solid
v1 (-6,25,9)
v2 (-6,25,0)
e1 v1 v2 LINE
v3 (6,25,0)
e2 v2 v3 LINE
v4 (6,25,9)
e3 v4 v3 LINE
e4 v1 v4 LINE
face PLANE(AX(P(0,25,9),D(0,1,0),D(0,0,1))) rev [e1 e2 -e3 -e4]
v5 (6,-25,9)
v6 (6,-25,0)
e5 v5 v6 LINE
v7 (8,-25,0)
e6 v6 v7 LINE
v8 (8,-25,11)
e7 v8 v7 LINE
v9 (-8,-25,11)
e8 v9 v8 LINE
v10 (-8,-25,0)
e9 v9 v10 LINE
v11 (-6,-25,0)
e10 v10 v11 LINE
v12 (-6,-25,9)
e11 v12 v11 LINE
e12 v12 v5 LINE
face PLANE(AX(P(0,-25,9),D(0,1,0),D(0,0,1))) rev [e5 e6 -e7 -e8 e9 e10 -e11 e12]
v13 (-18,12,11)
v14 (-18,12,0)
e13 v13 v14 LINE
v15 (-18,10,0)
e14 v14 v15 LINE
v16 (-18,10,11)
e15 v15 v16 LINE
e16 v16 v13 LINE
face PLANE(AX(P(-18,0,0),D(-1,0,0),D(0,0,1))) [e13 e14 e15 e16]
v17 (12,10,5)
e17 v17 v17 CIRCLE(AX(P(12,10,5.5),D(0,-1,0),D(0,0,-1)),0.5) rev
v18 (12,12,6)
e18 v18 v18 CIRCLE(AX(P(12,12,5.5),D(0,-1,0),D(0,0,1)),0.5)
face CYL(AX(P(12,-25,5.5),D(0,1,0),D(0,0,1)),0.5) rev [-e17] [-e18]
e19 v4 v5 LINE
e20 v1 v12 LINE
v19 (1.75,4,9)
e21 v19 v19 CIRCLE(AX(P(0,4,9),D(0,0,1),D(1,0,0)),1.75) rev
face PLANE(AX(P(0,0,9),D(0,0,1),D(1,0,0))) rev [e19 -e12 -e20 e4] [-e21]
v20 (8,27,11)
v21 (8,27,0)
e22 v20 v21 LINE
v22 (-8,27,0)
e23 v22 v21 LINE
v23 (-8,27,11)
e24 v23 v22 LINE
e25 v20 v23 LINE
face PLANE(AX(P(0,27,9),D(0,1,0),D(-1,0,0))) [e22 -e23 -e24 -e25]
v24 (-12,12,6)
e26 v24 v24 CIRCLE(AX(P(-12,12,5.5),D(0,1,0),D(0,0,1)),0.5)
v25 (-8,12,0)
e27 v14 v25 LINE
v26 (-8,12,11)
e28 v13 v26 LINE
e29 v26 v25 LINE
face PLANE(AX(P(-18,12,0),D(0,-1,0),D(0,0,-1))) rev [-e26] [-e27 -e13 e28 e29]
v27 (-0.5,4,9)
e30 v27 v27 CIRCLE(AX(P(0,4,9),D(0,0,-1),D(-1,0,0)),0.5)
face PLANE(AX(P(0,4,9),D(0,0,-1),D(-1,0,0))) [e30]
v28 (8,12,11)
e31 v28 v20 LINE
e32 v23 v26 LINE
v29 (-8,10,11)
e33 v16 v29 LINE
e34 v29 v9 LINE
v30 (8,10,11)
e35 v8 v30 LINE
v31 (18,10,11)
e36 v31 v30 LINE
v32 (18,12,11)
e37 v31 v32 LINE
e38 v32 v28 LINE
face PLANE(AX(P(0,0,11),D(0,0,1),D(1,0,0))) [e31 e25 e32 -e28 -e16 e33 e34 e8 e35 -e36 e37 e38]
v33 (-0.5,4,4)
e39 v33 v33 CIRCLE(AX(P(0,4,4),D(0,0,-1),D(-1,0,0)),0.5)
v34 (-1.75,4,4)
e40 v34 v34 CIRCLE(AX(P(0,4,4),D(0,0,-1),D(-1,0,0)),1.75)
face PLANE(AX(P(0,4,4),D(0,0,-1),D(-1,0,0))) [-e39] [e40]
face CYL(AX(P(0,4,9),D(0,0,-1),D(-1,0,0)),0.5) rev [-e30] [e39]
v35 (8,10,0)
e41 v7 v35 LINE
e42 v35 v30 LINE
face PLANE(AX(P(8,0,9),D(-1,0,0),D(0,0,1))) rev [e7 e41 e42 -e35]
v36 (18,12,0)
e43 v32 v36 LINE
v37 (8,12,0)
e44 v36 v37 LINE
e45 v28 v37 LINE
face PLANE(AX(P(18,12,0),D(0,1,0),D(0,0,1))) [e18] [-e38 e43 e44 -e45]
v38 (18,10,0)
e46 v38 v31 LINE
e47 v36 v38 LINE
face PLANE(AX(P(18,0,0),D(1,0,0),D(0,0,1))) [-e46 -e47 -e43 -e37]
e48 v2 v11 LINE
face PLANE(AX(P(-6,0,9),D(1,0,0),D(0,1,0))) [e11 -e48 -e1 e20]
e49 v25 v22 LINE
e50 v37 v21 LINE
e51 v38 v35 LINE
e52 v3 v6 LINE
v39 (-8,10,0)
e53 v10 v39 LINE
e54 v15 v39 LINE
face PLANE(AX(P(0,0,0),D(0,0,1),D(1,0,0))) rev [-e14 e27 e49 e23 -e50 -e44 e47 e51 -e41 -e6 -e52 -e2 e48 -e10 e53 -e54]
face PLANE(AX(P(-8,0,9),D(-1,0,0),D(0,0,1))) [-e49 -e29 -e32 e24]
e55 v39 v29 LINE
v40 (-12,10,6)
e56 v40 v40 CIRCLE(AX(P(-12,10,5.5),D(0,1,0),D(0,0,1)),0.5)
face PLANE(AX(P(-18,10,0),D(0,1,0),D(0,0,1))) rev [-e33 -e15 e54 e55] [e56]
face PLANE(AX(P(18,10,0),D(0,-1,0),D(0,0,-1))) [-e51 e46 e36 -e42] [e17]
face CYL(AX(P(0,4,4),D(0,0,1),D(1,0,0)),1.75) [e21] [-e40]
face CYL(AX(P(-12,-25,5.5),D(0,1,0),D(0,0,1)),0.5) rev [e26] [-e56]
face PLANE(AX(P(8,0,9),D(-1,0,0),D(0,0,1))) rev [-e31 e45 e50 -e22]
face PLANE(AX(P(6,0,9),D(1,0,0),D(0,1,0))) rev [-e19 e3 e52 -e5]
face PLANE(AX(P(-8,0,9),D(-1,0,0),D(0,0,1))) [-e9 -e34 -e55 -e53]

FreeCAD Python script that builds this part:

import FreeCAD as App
import Part
import Sketcher
from FreeCAD import Vector

doc = App.newDocument("Part")
params = doc.addObject("Spreadsheet::Sheet", "Params")
for row, (alias, value) in enumerate([
    ("sketch1_width", "12 mm"),
    ("sketch1_width2", "2 mm"),
    ("sketch1_height", "50 mm"),
    ("sketch1_height2", "52 mm"),
    ("pad1_length", "9 mm"),
    ("sketch2_width", "16 mm"),
    ("sketch2_height", "52 mm"),
    ("pad2_length", "2 mm"),
    ("sketch3_diameter", "3.5 mm"),
    ("pad3_length", "5 mm"),
    ("sketch4_diameter", "1 mm"),
    ("pocket1_length", "5 mm"),
    ("sketch5_width", "2 mm"),
    ("sketch5_height", "11 mm"),
    ("pad4_length", "10 mm"),
    ("sketch6_diameter", "1 mm"),
], start=1):
    params.set(f"A{row}", alias)
    params.set(f"B{row}", "=" + value)
    params.setAlias(f"B{row}", alias)

body = doc.addObject("PartDesign::Body", "Body")

# Sketch on XY plane
sketch1 = body.newObject("Sketcher::SketchObject", "Sketch")
sketch1.AttachmentSupport = (doc.getObject("XY_Plane"), [""])
sketch1.MapMode = "FlatFace"
sketch1.addGeometry(Part.LineSegment(Vector(-6, -25, 0), Vector(-6, 25, 0)), False)
sketch1.addGeometry(Part.LineSegment(Vector(-6, 25, 0), Vector(6, 25, 0)), False)
sketch1.addGeometry(Part.LineSegment(Vector(6, 25, 0), Vector(6, -25, 0)), False)
sketch1.addGeometry(Part.LineSegment(Vector(6, -25, 0), Vector(8, -25, 0)), False)
sketch1.addGeometry(Part.LineSegment(Vector(8, -25, 0), Vector(8, 27, 0)), False)
sketch1.addGeometry(Part.LineSegment(Vector(8, 27, 0), Vector(-8, 27, 0)), False)
sketch1.addGeometry(Part.LineSegment(Vector(-8, 27, 0), Vector(-8, -25, 0)), False)
sketch1.addGeometry(Part.LineSegment(Vector(-8, -25, 0), Vector(-6, -25, 0)), False)
sketch1.addConstraint(Sketcher.Constraint("Coincident", 0, 2, 1, 1))
sketch1.addConstraint(Sketcher.Constraint("Coincident", 1, 2, 2, 1))
sketch1.addConstraint(Sketcher.Constraint("Coincident", 2, 2, 3, 1))
sketch1.addConstraint(Sketcher.Constraint("Coincident", 3, 2, 4, 1))
sketch1.addConstraint(Sketcher.Constraint("Coincident", 4, 2, 5, 1))
sketch1.addConstraint(Sketcher.Constraint("Coincident", 5, 2, 6, 1))
sketch1.addConstraint(Sketcher.Constraint("Coincident", 6, 2, 7, 1))
sketch1.addConstraint(Sketcher.Constraint("Coincident", 7, 2, 0, 1))
sketch1.addConstraint(Sketcher.Constraint("Vertical", 0))
sketch1.addConstraint(Sketcher.Constraint("Horizontal", 1))
sketch1.addConstraint(Sketcher.Constraint("Vertical", 2))
sketch1.addConstraint(Sketcher.Constraint("Horizontal", 3))
sketch1.addConstraint(Sketcher.Constraint("Vertical", 4))
sketch1.addConstraint(Sketcher.Constraint("Horizontal", 5))
sketch1.addConstraint(Sketcher.Constraint("Vertical", 6))
sketch1.addConstraint(Sketcher.Constraint("Horizontal", 7))
sketch1.addConstraint(Sketcher.Constraint("Symmetric", 0, 2, 2, 2, -1, 1))
sketch1.addConstraint(Sketcher.Constraint("Symmetric", 3, 2, 6, 2, -2))
sketch1.addConstraint(Sketcher.Constraint("DistanceX", 1, 1, 1, 2, 12.0))
sketch1.addConstraint(Sketcher.Constraint("DistanceX", 3, 1, 3, 2, 2.0))
sketch1.addConstraint(Sketcher.Constraint("DistanceY", 0, 1, 0, 2, 50.0))
sketch1.addConstraint(Sketcher.Constraint("DistanceY", 4, 1, 4, 2, 52.0))
sketch1.setExpression("Constraints[18]", "Params.sketch1_width")
sketch1.setExpression("Constraints[19]", "Params.sketch1_width2")
sketch1.setExpression("Constraints[20]", "Params.sketch1_height")
sketch1.setExpression("Constraints[21]", "Params.sketch1_height2")
pad1 = body.newObject("PartDesign::Pad", "Pad")
pad1.Profile = sketch1
pad1.setExpression("Length", "Params.pad1_length")

# Sketch on XY plane
sketch2 = body.newObject("Sketcher::SketchObject", "Sketch001")
sketch2.AttachmentSupport = (doc.getObject("XY_Plane"), [""])
sketch2.MapMode = "FlatFace"
sketch2.AttachmentOffset = App.Placement(Vector(0, 0, 9), App.Rotation())
sketch2.addGeometry(Part.LineSegment(Vector(-8, 27, 0), Vector(-8, -25, 0)), False)
sketch2.addGeometry(Part.LineSegment(Vector(-8, -25, 0), Vector(8, -25, 0)), False)
sketch2.addGeometry(Part.LineSegment(Vector(8, -25, 0), Vector(8, 27, 0)), False)
sketch2.addGeometry(Part.LineSegment(Vector(8, 27, 0), Vector(-8, 27, 0)), False)
sketch2.addConstraint(Sketcher.Constraint("Coincident", 0, 2, 1, 1))
sketch2.addConstraint(Sketcher.Constraint("Coincident", 1, 2, 2, 1))
sketch2.addConstraint(Sketcher.Constraint("Coincident", 2, 2, 3, 1))
sketch2.addConstraint(Sketcher.Constraint("Coincident", 3, 2, 0, 1))
sketch2.addConstraint(Sketcher.Constraint("Vertical", 0))
sketch2.addConstraint(Sketcher.Constraint("Horizontal", 1))
sketch2.addConstraint(Sketcher.Constraint("Vertical", 2))
sketch2.addConstraint(Sketcher.Constraint("Horizontal", 3))
sketch2.addConstraint(Sketcher.Constraint("DistanceX", 1, 1, 1, 2, 16.0))
sketch2.addConstraint(Sketcher.Constraint("DistanceY", 0, 2, 0, 1, 52.0))
sketch2.addConstraint(Sketcher.Constraint("DistanceX", 0, 2, -1, 1, 8.0))
sketch2.addConstraint(Sketcher.Constraint("DistanceY", 0, 2, -1, 1, 25.0))
sketch2.setExpression("Constraints[8]", "Params.sketch2_width")
sketch2.setExpression("Constraints[9]", "Params.sketch2_height")
pad2 = body.newObject("PartDesign::Pad", "Pad001")
pad2.Profile = sketch2
pad2.setExpression("Length", "Params.pad2_length")

# Sketch on XY plane
sketch3 = body.newObject("Sketcher::SketchObject", "Sketch002")
sketch3.AttachmentSupport = (doc.getObject("XY_Plane"), [""])
sketch3.MapMode = "FlatFace"
sketch3.AttachmentOffset = App.Placement(Vector(0, 0, 9), App.Rotation())
sketch3.addGeometry(Part.Circle(Vector(0, 4, 0), Vector(0, 0, 1), 1.8), False)
sketch3.addConstraint(Sketcher.Constraint("PointOnObject", 0, 3, -2))
sketch3.addConstraint(Sketcher.Constraint("Diameter", 0, 3.5))
sketch3.addConstraint(Sketcher.Constraint("DistanceY", -1, 1, 0, 3, 4.0))
sketch3.setExpression("Constraints[1]", "Params.sketch3_diameter")
pad3 = body.newObject("PartDesign::Pad", "Pad002")
pad3.Profile = sketch3
pad3.setExpression("Length", "Params.pad3_length")
pad3.Reversed = True

# Sketch on XY plane
sketch4 = body.newObject("Sketcher::SketchObject", "Sketch003")
sketch4.AttachmentSupport = (doc.getObject("XY_Plane"), [""])
sketch4.MapMode = "FlatFace"
sketch4.AttachmentOffset = App.Placement(Vector(0, 0, 4), App.Rotation())
sketch4.addGeometry(Part.Circle(Vector(0, 4, 0), Vector(0, 0, 1), 0.5), False)
sketch4.addConstraint(Sketcher.Constraint("PointOnObject", 0, 3, -2))
sketch4.addConstraint(Sketcher.Constraint("Diameter", 0, 1.0))
sketch4.addConstraint(Sketcher.Constraint("DistanceY", -1, 1, 0, 3, 4.0))
sketch4.setExpression("Constraints[1]", "Params.sketch4_diameter")
pocket1 = body.newObject("PartDesign::Pocket", "Pocket")
pocket1.Profile = sketch4
pocket1.setExpression("Length", "Params.pocket1_length")
pocket1.Reversed = True

# Sketch on YZ plane
sketch5 = body.newObject("Sketcher::SketchObject", "Sketch004")
sketch5.AttachmentSupport = (doc.getObject("YZ_Plane"), [""])
sketch5.MapMode = "FlatFace"
sketch5.AttachmentOffset = App.Placement(Vector(0, 0, -8), App.Rotation())
sketch5.addGeometry(Part.LineSegment(Vector(12, 0, 0), Vector(10, 0, 0)), False)
sketch5.addGeometry(Part.LineSegment(Vector(10, 0, 0), Vector(10, 11, 0)), False)
sketch5.addGeometry(Part.LineSegment(Vector(10, 11, 0), Vector(12, 11, 0)), False)
sketch5.addGeometry(Part.LineSegment(Vector(12, 11, 0), Vector(12, 0, 0)), False)
sketch5.addConstraint(Sketcher.Constraint("Coincident", 0, 2, 1, 1))
sketch5.addConstraint(Sketcher.Constraint("Coincident", 1, 2, 2, 1))
sketch5.addConstraint(Sketcher.Constraint("Coincident", 2, 2, 3, 1))
sketch5.addConstraint(Sketcher.Constraint("Coincident", 3, 2, 0, 1))
sketch5.addConstraint(Sketcher.Constraint("Horizontal", 0))
sketch5.addConstraint(Sketcher.Constraint("Vertical", 1))
sketch5.addConstraint(Sketcher.Constraint("Horizontal", 2))
sketch5.addConstraint(Sketcher.Constraint("Vertical", 3))
sketch5.addConstraint(Sketcher.Constraint("PointOnObject", 0, 2, -1))
sketch5.addConstraint(Sketcher.Constraint("DistanceX", 0, 2, 0, 1, 2.0))
sketch5.addConstraint(Sketcher.Constraint("DistanceY", 1, 1, 1, 2, 11.0))
sketch5.addConstraint(Sketcher.Constraint("DistanceX", -1, 1, 0, 2, 10.0))
sketch5.setExpression("Constraints[9]", "Params.sketch5_width")
sketch5.setExpression("Constraints[10]", "Params.sketch5_height")
pad4 = body.newObject("PartDesign::Pad", "Pad003")
pad4.Profile = sketch5
pad4.setExpression("Length", "Params.pad4_length")
pad4.Reversed = True

# Sketch on XZ plane
sketch6 = body.newObject("Sketcher::SketchObject", "Sketch005")
sketch6.AttachmentSupport = (doc.getObject("XZ_Plane"), [""])
sketch6.MapMode = "FlatFace"
sketch6.AttachmentOffset = App.Placement(Vector(0, 0, -12), App.Rotation())
sketch6.addGeometry(Part.Circle(Vector(-12, 5.5, 0), Vector(0, 0, 1), 0.5), False)
sketch6.addConstraint(Sketcher.Constraint("Diameter", 0, 1.0))
sketch6.addConstraint(Sketcher.Constraint("DistanceX", 0, 3, -1, 1, 12.0))
sketch6.addConstraint(Sketcher.Constraint("DistanceY", -1, 1, 0, 3, 5.5))
sketch6.setExpression("Constraints[0]", "Params.sketch6_diameter")
pocket2 = body.newObject("PartDesign::Pocket", "Pocket001")
pocket2.Profile = sketch6
pocket2.Type = "ThroughAll"
pocket2.Reversed = True
doc.recompute()

mirrored = body.newObject("PartDesign::Mirrored", "Mirrored")
mirrored.Originals = [pad4, pocket2]
mirrored.MirrorPlane = (doc.getObject("YZ_Plane"), [""])
body.Tip = mirrored

doc.recompute()
